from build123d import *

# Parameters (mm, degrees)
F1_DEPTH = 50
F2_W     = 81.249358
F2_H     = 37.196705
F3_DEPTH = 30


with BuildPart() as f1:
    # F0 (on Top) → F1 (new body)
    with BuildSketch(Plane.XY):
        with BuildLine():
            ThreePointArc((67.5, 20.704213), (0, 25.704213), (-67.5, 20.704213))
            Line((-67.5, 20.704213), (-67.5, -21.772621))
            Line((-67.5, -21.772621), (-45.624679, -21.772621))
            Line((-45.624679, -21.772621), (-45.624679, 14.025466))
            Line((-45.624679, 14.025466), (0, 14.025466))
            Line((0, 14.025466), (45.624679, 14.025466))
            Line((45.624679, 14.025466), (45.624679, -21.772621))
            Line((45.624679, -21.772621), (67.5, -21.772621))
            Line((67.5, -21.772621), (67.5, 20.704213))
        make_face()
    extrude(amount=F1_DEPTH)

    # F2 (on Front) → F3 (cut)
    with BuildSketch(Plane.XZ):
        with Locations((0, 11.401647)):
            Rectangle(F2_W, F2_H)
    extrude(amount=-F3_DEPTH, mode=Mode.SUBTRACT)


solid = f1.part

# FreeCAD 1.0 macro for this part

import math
import FreeCAD as App
import Part
import Sketcher

V = App.Vector
Q = App.Units.Quantity

doc = App.newDocument("Part")
body = doc.addObject("PartDesign::Body", "Body")

sketch1 = body.newObject("Sketcher::SketchObject", "Sketch")
sketch1.AttachmentSupport = (doc.getObject("XY_Plane"), [""])
sketch1.MapMode = "FlatFace"
sketch1.addGeometry([
    Part.ArcOfCircle(Part.Circle(V(0, -432, 0), V(0, 0, 1), 458), math.radians(81.53), math.radians(98.47)),
    Part.LineSegment(V(-68, 21, 0), V(-68, -22, 0)),
    Part.LineSegment(V(-68, -22, 0), V(-46, -22, 0)),
    Part.LineSegment(V(-46, -22, 0), V(-46, 14, 0)),
    Part.LineSegment(V(-46, 14, 0), V(46, 14, 0)),
    Part.LineSegment(V(46, 14, 0), V(46, -22, 0)),
    Part.LineSegment(V(46, -22, 0), V(68, -22, 0)),
    Part.LineSegment(V(68, -22, 0), V(68, 21, 0)),
], False)
sketch1.addConstraint([
    Sketcher.Constraint("Coincident", 0, 2, 1, 1),
    Sketcher.Constraint("Coincident", 1, 2, 2, 1),
    Sketcher.Constraint("Coincident", 2, 2, 3, 1),
    Sketcher.Constraint("Coincident", 3, 2, 4, 1),
    Sketcher.Constraint("Coincident", 4, 2, 5, 1),
    Sketcher.Constraint("Coincident", 5, 2, 6, 1),
    Sketcher.Constraint("Coincident", 6, 2, 7, 1),
    Sketcher.Constraint("Coincident", 7, 2, 0, 1),
    Sketcher.Constraint("Vertical", 1),
    Sketcher.Constraint("Horizontal", 2),
    Sketcher.Constraint("Vertical", 3),
    Sketcher.Constraint("Horizontal", 4),
    Sketcher.Constraint("Vertical", 5),
    Sketcher.Constraint("Horizontal", 6),
    Sketcher.Constraint("Vertical", 7),
    Sketcher.Constraint("Symmetric", 2, 2, 5, 2, -2),
    Sketcher.Constraint("PointOnObject", 0, 3, -2),
    Sketcher.Constraint("Equal", 2, 6),
    Sketcher.Constraint("Radius", 0, Q("458.125 mm")),
    Sketcher.Constraint("DistanceX", 1, 2, 6, 2, Q("135 mm")),
    Sketcher.Constraint("DistanceX", 2, 1, 2, 2, Q("21.875321 mm")),
    Sketcher.Constraint("DistanceY", 1, 2, 1, 1, Q("42.476834 mm")),
    Sketcher.Constraint("DistanceY", 3, 1, 3, 2, Q("35.798087 mm")),
    Sketcher.Constraint("DistanceY", 1, 2, -1, 1, Q("21.772621 mm")),
])
pad1 = body.newObject("PartDesign::Pad", "Pad")
pad1.Profile = sketch1
pad1.Length = 50

sketch2 = body.newObject("Sketcher::SketchObject", "Sketch001")
sketch2.AttachmentSupport = (doc.getObject("XZ_Plane"), [""])
sketch2.MapMode = "FlatFace"
sketch2.addGeometry([
    Part.LineSegment(V(-41, 30, 0), V(-41, -7, 0)),
    Part.LineSegment(V(-41, -7, 0), V(41, -7, 0)),
    Part.LineSegment(V(41, -7, 0), V(41, 30, 0)),
    Part.LineSegment(V(41, 30, 0), V(-41, 30, 0)),
], False)
sketch2.addConstraint([
    Sketcher.Constraint("Coincident", 0, 2, 1, 1),
    Sketcher.Constraint("Coincident", 1, 2, 2, 1),
    Sketcher.Constraint("Coincident", 2, 2, 3, 1),
    Sketcher.Constraint("Coincident", 3, 2, 0, 1),
    Sketcher.Constraint("Vertical", 0),
    Sketcher.Constraint("Horizontal", 1),
    Sketcher.Constraint("Vertical", 2),
    Sketcher.Constraint("Horizontal", 3),
    Sketcher.Constraint("DistanceY", -1, 1, 2, 2, Q("30 mm")),
    Sketcher.Constraint("DistanceX", 1, 1, 1, 2, Q("81.249358 mm")),
    Sketcher.Constraint("DistanceY", 0, 2, 0, 1, Q("37.196705 mm")),
    Sketcher.Constraint("DistanceX", 0, 2, -1, 1, Q("40.624679 mm")),
])
pocket1 = body.newObject("PartDesign::Pocket", "Pocket")
pocket1.Profile = sketch2
pocket1.Length = 30

doc.recompute()
